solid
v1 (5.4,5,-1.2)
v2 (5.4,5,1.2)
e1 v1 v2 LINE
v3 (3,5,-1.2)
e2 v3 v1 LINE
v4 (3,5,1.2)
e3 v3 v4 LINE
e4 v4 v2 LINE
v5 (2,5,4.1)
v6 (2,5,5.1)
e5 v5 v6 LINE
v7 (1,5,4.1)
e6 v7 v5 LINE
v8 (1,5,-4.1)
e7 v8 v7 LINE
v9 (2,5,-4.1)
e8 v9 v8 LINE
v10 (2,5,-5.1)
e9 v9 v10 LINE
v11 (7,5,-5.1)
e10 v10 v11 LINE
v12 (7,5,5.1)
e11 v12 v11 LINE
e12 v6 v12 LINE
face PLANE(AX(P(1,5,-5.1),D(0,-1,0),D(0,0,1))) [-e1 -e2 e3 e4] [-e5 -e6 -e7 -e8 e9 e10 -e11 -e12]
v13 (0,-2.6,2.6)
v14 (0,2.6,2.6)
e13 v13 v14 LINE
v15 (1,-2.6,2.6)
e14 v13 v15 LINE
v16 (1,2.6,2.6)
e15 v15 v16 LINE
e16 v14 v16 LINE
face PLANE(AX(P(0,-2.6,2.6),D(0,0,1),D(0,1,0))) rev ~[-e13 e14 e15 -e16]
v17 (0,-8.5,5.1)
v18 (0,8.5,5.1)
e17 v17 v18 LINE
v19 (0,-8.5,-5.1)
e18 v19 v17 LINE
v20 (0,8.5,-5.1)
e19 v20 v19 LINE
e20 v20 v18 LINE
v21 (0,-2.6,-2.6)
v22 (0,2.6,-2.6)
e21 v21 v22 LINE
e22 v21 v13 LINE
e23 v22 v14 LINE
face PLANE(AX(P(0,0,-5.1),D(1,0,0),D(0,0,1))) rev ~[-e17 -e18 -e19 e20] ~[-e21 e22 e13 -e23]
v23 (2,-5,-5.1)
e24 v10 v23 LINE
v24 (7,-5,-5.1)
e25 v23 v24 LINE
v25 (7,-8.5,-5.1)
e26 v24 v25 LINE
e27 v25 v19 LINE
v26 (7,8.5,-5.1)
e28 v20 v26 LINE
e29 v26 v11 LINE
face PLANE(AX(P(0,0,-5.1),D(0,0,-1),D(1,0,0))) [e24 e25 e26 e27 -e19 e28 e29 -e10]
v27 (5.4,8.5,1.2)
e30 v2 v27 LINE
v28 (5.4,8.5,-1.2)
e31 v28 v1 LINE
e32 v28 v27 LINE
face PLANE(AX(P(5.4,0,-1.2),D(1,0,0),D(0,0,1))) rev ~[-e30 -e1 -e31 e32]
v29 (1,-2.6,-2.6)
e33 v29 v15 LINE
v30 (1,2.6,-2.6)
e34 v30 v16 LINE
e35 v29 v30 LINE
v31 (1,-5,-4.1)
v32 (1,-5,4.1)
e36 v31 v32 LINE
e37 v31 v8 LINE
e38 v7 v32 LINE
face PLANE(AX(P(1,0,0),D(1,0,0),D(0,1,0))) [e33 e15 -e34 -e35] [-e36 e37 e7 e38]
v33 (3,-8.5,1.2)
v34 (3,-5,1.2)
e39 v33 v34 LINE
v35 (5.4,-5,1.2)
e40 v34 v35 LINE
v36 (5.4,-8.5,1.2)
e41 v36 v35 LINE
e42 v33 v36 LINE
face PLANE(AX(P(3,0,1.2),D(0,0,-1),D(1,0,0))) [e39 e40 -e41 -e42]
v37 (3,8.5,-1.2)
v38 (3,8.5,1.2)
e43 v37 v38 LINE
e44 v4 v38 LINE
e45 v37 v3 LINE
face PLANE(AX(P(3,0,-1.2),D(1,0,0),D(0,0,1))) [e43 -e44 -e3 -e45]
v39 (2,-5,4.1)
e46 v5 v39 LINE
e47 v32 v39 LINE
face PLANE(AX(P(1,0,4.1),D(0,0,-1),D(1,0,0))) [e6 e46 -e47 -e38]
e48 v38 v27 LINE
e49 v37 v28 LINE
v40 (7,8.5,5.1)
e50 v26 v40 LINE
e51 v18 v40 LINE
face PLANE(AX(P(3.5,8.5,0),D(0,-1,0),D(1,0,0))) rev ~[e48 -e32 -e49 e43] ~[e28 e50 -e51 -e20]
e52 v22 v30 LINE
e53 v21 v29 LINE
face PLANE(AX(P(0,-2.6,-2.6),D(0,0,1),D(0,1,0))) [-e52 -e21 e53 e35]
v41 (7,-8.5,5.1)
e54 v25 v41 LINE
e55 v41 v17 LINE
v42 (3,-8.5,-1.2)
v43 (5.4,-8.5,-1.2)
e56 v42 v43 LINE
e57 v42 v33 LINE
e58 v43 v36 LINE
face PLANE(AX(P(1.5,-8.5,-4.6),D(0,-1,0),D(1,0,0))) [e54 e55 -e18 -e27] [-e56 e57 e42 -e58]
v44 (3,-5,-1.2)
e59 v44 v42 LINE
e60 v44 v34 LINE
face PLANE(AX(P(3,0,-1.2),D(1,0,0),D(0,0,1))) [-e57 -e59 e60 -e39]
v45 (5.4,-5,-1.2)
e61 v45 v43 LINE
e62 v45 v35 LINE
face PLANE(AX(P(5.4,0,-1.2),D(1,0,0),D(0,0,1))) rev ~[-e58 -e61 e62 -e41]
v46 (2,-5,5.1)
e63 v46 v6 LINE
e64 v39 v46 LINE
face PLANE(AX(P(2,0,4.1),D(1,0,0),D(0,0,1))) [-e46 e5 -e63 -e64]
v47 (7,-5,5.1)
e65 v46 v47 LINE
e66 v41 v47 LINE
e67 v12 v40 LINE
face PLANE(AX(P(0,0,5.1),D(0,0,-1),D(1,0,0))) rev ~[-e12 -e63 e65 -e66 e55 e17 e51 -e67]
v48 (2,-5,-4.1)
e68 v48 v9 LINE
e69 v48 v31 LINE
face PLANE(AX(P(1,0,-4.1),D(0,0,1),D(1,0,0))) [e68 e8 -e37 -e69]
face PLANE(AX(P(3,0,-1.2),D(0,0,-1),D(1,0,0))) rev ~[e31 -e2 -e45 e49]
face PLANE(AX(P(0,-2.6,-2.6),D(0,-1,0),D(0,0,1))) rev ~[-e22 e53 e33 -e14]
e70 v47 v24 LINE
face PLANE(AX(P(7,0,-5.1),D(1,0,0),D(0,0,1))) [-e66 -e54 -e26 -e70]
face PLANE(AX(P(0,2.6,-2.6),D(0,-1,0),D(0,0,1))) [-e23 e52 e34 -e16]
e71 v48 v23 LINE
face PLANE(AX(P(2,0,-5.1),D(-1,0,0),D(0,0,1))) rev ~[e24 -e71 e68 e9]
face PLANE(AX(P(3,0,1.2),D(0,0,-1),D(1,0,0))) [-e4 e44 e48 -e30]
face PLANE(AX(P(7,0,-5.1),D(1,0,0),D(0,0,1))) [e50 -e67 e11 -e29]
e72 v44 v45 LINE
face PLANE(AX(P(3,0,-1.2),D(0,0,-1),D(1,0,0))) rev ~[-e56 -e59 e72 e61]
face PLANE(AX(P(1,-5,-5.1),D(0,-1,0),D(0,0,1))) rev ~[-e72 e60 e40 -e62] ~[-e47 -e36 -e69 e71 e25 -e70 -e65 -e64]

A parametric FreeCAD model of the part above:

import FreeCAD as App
import Part
import Sketcher

V = App.Vector
Q = App.Units.Quantity

doc = App.newDocument("Part")
body = doc.addObject("PartDesign::Body", "Body")
body.AllowCompound = True

sketch1 = body.newObject("Sketcher::SketchObject", "Sketch")
sketch1.AttachmentSupport = (doc.getObject("XZ_Plane"), [""])
sketch1.MapMode = "FlatFace"
sketch1.addGeometry([
    Part.LineSegment(V(1, -4.1, 0), V(1, -5.1, 0)),
    Part.LineSegment(V(1, -5.1, 0), V(2, -5.1, 0)),
    Part.LineSegment(V(2, -5.1, 0), V(2, -4.1, 0)),
    Part.LineSegment(V(2, -4.1, 0), V(1, -4.1, 0)),
    Part.LineSegment(V(1, 5.1, 0), V(1, 4.1, 0)),
    Part.LineSegment(V(1, 4.1, 0), V(2, 4.1, 0)),
    Part.LineSegment(V(2, 4.1, 0), V(2, 5.1, 0)),
    Part.LineSegment(V(2, 5.1, 0), V(1, 5.1, 0)),
], False)
sketch1.addConstraint([
    Sketcher.Constraint("Coincident", 0, 2, 1, 1),
    Sketcher.Constraint("Coincident", 1, 2, 2, 1),
    Sketcher.Constraint("Coincident", 2, 2, 3, 1),
    Sketcher.Constraint("Coincident", 3, 2, 0, 1),
    Sketcher.Constraint("Coincident", 4, 2, 5, 1),
    Sketcher.Constraint("Coincident", 5, 2, 6, 1),
    Sketcher.Constraint("Coincident", 6, 2, 7, 1),
    Sketcher.Constraint("Coincident", 7, 2, 4, 1),
    Sketcher.Constraint("Vertical", 0),
    Sketcher.Constraint("Horizontal", 1),
    Sketcher.Constraint("Vertical", 2),
    Sketcher.Constraint("Horizontal", 3),
    Sketcher.Constraint("Vertical", 4),
    Sketcher.Constraint("Horizontal", 5),
    Sketcher.Constraint("Vertical", 6),
    Sketcher.Constraint("Horizontal", 7),
    Sketcher.Constraint("Symmetric", 3, 2, 4, 2, -1),
    Sketcher.Constraint("Symmetric", 1, 2, 6, 2, -1),
    Sketcher.Constraint("Equal", 7, 0),
    Sketcher.Constraint("DistanceX", 1, 1, 1, 2, Q("1 mm")),
    Sketcher.Constraint("DistanceX", -1, 1, 0, 2, Q("1 mm")),
    Sketcher.Constraint("DistanceY", 0, 2, -1, 1, Q("5.1 mm")),
])
pad1 = body.newObject("PartDesign::Pad", "Pad")
pad1.Profile = sketch1
pad1.Length = 17
pad1.Midplane = True
body2 = doc.addObject("PartDesign::Body", "Body001")

sketch2 = body2.newObject("Sketcher::SketchObject", "Sketch001")
sketch2.AttachmentSupport = (doc.getObject("XZ_Plane001"), [""])
sketch2.MapMode = "FlatFace"
sketch2.addGeometry([
    Part.LineSegment(V(3, 1.2, 0), V(3, -1.2, 0)),
    Part.LineSegment(V(3, -1.2, 0), V(5.4, -1.2, 0)),
    Part.LineSegment(V(5.4, -1.2, 0), V(5.4, 1.2, 0)),
    Part.LineSegment(V(5.4, 1.2, 0), V(3, 1.2, 0)),
], False)
sketch2.addConstraint([
    Sketcher.Constraint("Coincident", 0, 2, 1, 1),
    Sketcher.Constraint("Coincident", 1, 2, 2, 1),
    Sketcher.Constraint("Coincident", 2, 2, 3, 1),
    Sketcher.Constraint("Coincident", 3, 2, 0, 1),
    Sketcher.Constraint("Vertical", 0),
    Sketcher.Constraint("Horizontal", 1),
    Sketcher.Constraint("Vertical", 2),
    Sketcher.Constraint("Horizontal", 3),
    Sketcher.Constraint("Equal", 3, 0),
    Sketcher.Constraint("DistanceX", 1, 1, 1, 2, Q("2.4 mm")),
    Sketcher.Constraint("DistanceX", -1, 1, 0, 2, Q("3 mm")),
    Sketcher.Constraint("DistanceY", 0, 2, -1, 1, Q("1.2 mm")),
])
pad2 = body2.newObject("PartDesign::Pad", "Pad001")
pad2.Profile = sketch2
pad2.Length = 17
pad2.Midplane = True
body3 = doc.addObject("PartDesign::Body", "Body002")

sketch3 = body3.newObject("Sketcher::SketchObject", "Sketch002")
sketch3.AttachmentSupport = (doc.getObject("YZ_Plane002"), [""])
sketch3.MapMode = "FlatFace"
sketch3.addGeometry([
    Part.LineSegment(V(-2.6, 2.6, 0), V(-2.6, -2.6, 0)),
    Part.LineSegment(V(-2.6, -2.6, 0), V(2.6, -2.6, 0)),
    Part.LineSegment(V(2.6, -2.6, 0), V(2.6, 2.6, 0)),
    Part.LineSegment(V(2.6, 2.6, 0), V(-2.6, 2.6, 0)),
], False)
sketch3.addConstraint([
    Sketcher.Constraint("Coincident", 0, 2, 1, 1),
    Sketcher.Constraint("Coincident", 1, 2, 2, 1),
    Sketcher.Constraint("Coincident", 2, 2, 3, 1),
    Sketcher.Constraint("Coincident", 3, 2, 0, 1),
    Sketcher.Constraint("Vertical", 0),
    Sketcher.Constraint("Horizontal", 1),
    Sketcher.Constraint("Vertical", 2),
    Sketcher.Constraint("Horizontal", 3),
    Sketcher.Constraint("Symmetric", 0, 2, 2, 2, -1, 1),
    Sketcher.Constraint("Equal", 3, 0),
    Sketcher.Constraint("DistanceX", 1, 1, 1, 2, Q("5.2 mm")),
])
pad3 = body3.newObject("PartDesign::Pad", "Pad002")
pad3.Profile = sketch3
pad3.Length = 1
body4 = doc.addObject("PartDesign::Body", "Body003")

sketch4 = body4.newObject("Sketcher::SketchObject", "Sketch003")
sketch4.AttachmentSupport = (doc.getObject("YZ_Plane003"), [""])
sketch4.MapMode = "FlatFace"
sketch4.addGeometry([
    Part.LineSegment(V(-5, 5.1, 0), V(-5, -5.1, 0)),
    Part.LineSegment(V(-5, -5.1, 0), V(5, -5.1, 0)),
    Part.LineSegment(V(5, -5.1, 0), V(5, 5.1, 0)),
    Part.LineSegment(V(5, 5.1, 0), V(-5, 5.1, 0)),
], False)
sketch4.addConstraint([
    Sketcher.Constraint("Coincident", 0, 2, 1, 1),
    Sketcher.Constraint("Coincident", 1, 2, 2, 1),
    Sketcher.Constraint("Coincident", 2, 2, 3, 1),
    Sketcher.Constraint("Coincident", 3, 2, 0, 1),
    Sketcher.Constraint("Vertical", 0),
    Sketcher.Constraint("Horizontal", 1),
    Sketcher.Constraint("Vertical", 2),
    Sketcher.Constraint("Horizontal", 3),
    Sketcher.Constraint("Symmetric", 0, 2, 2, 2, -1, 1),
    Sketcher.Constraint("DistanceX", 1, 1, 1, 2, Q("10 mm")),
    Sketcher.Constraint("DistanceY", 0, 2, 0, 1, Q("10.2 mm")),
])
pad4 = body4.newObject("PartDesign::Pad", "Pad003")
pad4.Profile = sketch4
pad4.Length = 8
body5 = doc.addObject("PartDesign::Body", "Body004")
doc.recompute()

body4.Placement = App.Placement(V(1, 0, 0), App.Rotation(V(0, 0, 1), 0))
boolean = body5.newObject("PartDesign::Boolean", "Boolean")
boolean.Type = "Fuse"
boolean.addObjects([body4])
body6 = doc.addObject("PartDesign::Body", "Body005")

sketch5 = body6.newObject("Sketcher::SketchObject", "Sketch004")
sketch5.AttachmentSupport = (doc.getObject("XZ_Plane005"), [""])
sketch5.MapMode = "FlatFace"
sketch5.addGeometry([
    Part.LineSegment(V(0, 5.1, 0), V(0, -5.1, 0)),
    Part.LineSegment(V(0, -5.1, 0), V(7, -5.1, 0)),
    Part.LineSegment(V(7, -5.1, 0), V(7, 5.1, 0)),
    Part.LineSegment(V(7, 5.1, 0), V(0, 5.1, 0)),
], False)
sketch5.addConstraint([
    Sketcher.Constraint("Coincident", 0, 2, 1, 1),
    Sketcher.Constraint("Coincident", 1, 2, 2, 1),
    Sketcher.Constraint("Coincident", 2, 2, 3, 1),
    Sketcher.Constraint("Coincident", 3, 2, 0, 1),
    Sketcher.Constraint("Vertical", 0),
    Sketcher.Constraint("Horizontal", 1),
    Sketcher.Constraint("Vertical", 2),
    Sketcher.Constraint("Horizontal", 3),
    Sketcher.Constraint("Symmetric", 0, 2, 3, 2, -1, 1),
    Sketcher.Constraint("DistanceX", 1, 1, 1, 2, Q("7 mm")),
    Sketcher.Constraint("DistanceY", 0, 2, 0, 1, Q("10.2 mm")),
])
pad5 = body6.newObject("PartDesign::Pad", "Pad004")
pad5.Profile = sketch5
pad5.Length = 17
pad5.Midplane = True
doc.recompute()

boolean2 = body6.newObject("PartDesign::Boolean", "Boolean001")
boolean2.Type = "Cut"
boolean2.addObjects([body5])
doc.recompute()

boolean3 = body6.newObject("PartDesign::Boolean", "Boolean002")
boolean3.Type = "Cut"
boolean3.addObjects([body3])
doc.recompute()

boolean4 = body6.newObject("PartDesign::Boolean", "Boolean003")
boolean4.Type = "Cut"
boolean4.addObjects([body2])
doc.recompute()

boolean5 = body6.newObject("PartDesign::Boolean", "Boolean004")
boolean5.Type = "Fuse"
boolean5.addObjects([body])

doc.recompute()
